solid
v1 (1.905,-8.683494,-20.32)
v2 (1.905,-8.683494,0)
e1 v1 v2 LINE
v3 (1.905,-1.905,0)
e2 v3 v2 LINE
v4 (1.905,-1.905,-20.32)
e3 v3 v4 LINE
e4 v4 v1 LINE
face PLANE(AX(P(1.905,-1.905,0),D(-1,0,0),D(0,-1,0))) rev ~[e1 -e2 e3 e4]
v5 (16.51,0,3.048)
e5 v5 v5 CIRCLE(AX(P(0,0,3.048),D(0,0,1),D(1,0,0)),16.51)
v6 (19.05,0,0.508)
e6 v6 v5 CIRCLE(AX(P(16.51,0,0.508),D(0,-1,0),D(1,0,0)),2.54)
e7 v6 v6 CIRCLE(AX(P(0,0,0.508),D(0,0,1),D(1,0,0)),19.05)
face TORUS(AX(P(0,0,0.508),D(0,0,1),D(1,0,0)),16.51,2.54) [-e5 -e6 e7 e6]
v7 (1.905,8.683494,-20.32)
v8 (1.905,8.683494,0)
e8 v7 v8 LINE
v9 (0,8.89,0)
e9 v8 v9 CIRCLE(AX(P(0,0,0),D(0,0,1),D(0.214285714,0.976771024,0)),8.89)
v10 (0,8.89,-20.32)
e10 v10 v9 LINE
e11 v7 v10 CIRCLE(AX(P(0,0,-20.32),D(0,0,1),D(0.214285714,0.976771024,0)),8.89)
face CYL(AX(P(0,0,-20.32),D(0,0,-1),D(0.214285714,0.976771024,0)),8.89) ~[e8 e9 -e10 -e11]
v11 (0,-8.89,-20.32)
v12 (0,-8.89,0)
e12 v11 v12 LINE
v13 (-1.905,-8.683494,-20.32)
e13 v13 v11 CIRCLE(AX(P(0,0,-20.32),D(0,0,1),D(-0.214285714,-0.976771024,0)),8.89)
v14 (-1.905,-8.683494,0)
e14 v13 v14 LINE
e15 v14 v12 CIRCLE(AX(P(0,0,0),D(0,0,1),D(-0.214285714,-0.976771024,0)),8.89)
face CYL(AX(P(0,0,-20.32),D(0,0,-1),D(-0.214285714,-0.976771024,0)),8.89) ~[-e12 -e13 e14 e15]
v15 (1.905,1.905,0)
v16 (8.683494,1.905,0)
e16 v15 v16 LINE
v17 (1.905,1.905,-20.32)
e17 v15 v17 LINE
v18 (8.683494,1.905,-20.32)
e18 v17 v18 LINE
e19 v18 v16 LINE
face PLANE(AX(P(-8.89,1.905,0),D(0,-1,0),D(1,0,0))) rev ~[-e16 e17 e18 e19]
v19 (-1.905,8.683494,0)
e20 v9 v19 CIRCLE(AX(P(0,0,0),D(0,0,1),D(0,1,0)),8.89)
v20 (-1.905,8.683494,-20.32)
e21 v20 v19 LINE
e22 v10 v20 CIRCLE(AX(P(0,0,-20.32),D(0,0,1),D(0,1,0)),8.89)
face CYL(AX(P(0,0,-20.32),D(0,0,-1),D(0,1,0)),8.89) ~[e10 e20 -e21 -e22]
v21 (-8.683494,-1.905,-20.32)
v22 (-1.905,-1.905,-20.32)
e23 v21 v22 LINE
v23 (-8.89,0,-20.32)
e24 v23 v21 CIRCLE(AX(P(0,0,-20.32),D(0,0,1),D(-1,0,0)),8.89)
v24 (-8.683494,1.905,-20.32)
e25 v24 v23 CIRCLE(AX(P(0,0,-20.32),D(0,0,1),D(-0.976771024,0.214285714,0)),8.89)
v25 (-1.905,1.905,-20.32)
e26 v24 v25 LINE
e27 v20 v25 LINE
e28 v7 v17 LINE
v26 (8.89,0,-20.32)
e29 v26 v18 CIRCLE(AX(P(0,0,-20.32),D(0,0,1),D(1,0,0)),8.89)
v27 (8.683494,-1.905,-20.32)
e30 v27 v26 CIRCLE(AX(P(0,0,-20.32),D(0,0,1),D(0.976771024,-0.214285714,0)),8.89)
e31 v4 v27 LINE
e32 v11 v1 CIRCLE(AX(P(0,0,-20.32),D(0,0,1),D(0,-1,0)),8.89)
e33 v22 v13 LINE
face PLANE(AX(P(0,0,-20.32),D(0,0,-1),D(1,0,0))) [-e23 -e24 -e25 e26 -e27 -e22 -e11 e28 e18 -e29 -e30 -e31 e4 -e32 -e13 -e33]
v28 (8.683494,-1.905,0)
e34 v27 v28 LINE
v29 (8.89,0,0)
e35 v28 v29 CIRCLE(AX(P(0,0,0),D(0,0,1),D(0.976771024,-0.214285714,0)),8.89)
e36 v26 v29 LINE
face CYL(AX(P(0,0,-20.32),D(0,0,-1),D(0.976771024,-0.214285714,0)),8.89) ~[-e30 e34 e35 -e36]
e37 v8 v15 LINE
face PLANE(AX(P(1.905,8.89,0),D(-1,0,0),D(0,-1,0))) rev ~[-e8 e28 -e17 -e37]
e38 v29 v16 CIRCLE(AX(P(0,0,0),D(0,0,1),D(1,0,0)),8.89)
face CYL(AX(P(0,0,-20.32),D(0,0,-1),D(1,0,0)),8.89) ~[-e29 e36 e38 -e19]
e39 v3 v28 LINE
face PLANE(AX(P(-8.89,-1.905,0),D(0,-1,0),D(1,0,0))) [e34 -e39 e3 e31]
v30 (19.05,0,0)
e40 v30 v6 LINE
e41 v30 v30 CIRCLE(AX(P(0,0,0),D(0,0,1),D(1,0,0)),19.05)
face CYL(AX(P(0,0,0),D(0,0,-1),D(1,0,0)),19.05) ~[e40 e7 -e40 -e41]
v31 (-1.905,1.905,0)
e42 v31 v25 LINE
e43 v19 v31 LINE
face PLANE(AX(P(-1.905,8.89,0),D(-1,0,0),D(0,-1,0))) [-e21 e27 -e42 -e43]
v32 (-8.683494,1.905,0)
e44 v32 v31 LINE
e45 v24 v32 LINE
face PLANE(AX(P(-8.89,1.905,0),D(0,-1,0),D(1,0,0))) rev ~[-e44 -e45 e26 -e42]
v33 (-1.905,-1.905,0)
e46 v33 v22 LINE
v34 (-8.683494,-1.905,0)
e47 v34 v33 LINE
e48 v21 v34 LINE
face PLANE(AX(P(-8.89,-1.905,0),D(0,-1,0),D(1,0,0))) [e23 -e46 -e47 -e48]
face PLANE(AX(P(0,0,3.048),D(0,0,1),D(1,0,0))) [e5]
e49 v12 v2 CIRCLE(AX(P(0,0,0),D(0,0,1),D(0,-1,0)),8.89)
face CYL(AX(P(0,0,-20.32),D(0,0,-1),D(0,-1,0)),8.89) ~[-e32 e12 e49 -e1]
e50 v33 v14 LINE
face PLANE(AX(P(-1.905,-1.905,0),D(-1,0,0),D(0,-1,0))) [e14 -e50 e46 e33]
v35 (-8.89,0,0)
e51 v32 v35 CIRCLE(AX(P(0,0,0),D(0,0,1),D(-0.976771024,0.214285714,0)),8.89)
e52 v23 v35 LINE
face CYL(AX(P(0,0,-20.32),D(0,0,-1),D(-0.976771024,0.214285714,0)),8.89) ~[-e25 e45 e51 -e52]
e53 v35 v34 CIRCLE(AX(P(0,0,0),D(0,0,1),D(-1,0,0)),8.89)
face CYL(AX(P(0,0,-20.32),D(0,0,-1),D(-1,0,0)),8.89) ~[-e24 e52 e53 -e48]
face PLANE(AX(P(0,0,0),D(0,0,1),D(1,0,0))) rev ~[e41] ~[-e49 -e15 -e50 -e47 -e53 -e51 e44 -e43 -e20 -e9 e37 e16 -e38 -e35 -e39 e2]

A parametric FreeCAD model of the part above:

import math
import FreeCAD as App
import Part
import Sketcher
from FreeCAD import Vector
Q = App.Units.Quantity


def edges_at(feature, points):
    """Names of the edges that pass closest to the given points."""
    edges = feature.Shape.Edges
    near = lambda p: min(range(len(edges)), key=lambda i: edges[i].distToShape(Part.Vertex(*p))[0])
    return sorted({f"Edge{near(p) + 1}" for p in points})

doc = App.newDocument("Part")
body = doc.addObject("PartDesign::Body", "Body")

sketch1 = doc.addObject("Sketcher::SketchObject", "Sketch")
body.addObject(sketch1)
sketch1.AttachmentSupport = (doc.XY_Plane, [""])
sketch1.MapMode = "FlatFace"
sketch1.addGeometry(Part.Circle(Vector(0, 0, 0), Vector(0, 0, 1), 19.05), False)
sketch1.addConstraint(Sketcher.Constraint("Coincident", 0, 3, -1, 1))
sketch1.addConstraint(Sketcher.Constraint("Diameter", 0, Q("1.5 in")))
pad1 = doc.addObject("PartDesign::Pad", "Pad")
body.addObject(pad1)
pad1.Profile = sketch1
pad1.Length = Q("0.12 in")
doc.recompute()

fillet = doc.addObject("PartDesign::Fillet", "Fillet")
body.addObject(fillet)
fillet.Base = (pad1, edges_at(pad1, [(-19.05, 0, 3.048)]))
fillet.Radius = Q("0.1 in")

sketch2 = doc.addObject("Sketcher::SketchObject", "Sketch001")
body.addObject(sketch2)
sketch2.AttachmentSupport = (doc.XY_Plane, [""])
sketch2.MapMode = "FlatFace"
sketch2.addGeometry(Part.LineSegment(Vector(-8.89, -1.905, 0), Vector(-8.89, 1.905, 0)), False)
sketch2.addGeometry(Part.LineSegment(Vector(-8.89, 1.905, 0), Vector(-1.905, 1.905, 0)), False)
sketch2.addGeometry(Part.LineSegment(Vector(-1.905, 1.905, 0), Vector(-1.905, 8.89, 0)), False)
sketch2.addGeometry(Part.LineSegment(Vector(-1.905, 8.89, 0), Vector(1.905, 8.89, 0)), False)
sketch2.addGeometry(Part.LineSegment(Vector(1.905, 8.89, 0), Vector(1.905, 1.905, 0)), False)
sketch2.addGeometry(Part.LineSegment(Vector(1.905, 1.905, 0), Vector(8.89, 1.905, 0)), False)
sketch2.addGeometry(Part.LineSegment(Vector(8.89, 1.905, 0), Vector(8.89, -1.905, 0)), False)
sketch2.addGeometry(Part.LineSegment(Vector(8.89, -1.905, 0), Vector(1.905, -1.905, 0)), False)
sketch2.addGeometry(Part.LineSegment(Vector(1.905, -1.905, 0), Vector(1.905, -8.89, 0)), False)
sketch2.addGeometry(Part.LineSegment(Vector(1.905, -8.89, 0), Vector(-1.905, -8.89, 0)), False)
sketch2.addGeometry(Part.LineSegment(Vector(-1.905, -8.89, 0), Vector(-1.905, -1.905, 0)), False)
sketch2.addGeometry(Part.LineSegment(Vector(-1.905, -1.905, 0), Vector(-8.89, -1.905, 0)), False)
sketch2.addConstraint(Sketcher.Constraint("Coincident", 0, 2, 1, 1))
sketch2.addConstraint(Sketcher.Constraint("Coincident", 1, 2, 2, 1))
sketch2.addConstraint(Sketcher.Constraint("Coincident", 2, 2, 3, 1))
sketch2.addConstraint(Sketcher.Constraint("Coincident", 3, 2, 4, 1))
sketch2.addConstraint(Sketcher.Constraint("Coincident", 4, 2, 5, 1))
sketch2.addConstraint(Sketcher.Constraint("Coincident", 5, 2, 6, 1))
sketch2.addConstraint(Sketcher.Constraint("Coincident", 6, 2, 7, 1))
sketch2.addConstraint(Sketcher.Constraint("Coincident", 7, 2, 8, 1))
sketch2.addConstraint(Sketcher.Constraint("Coincident", 8, 2, 9, 1))
sketch2.addConstraint(Sketcher.Constraint("Coincident", 9, 2, 10, 1))
sketch2.addConstraint(Sketcher.Constraint("Coincident", 10, 2, 11, 1))
sketch2.addConstraint(Sketcher.Constraint("Coincident", 11, 2, 0, 1))
sketch2.addConstraint(Sketcher.Constraint("Vertical", 0))
sketch2.addConstraint(Sketcher.Constraint("Horizontal", 1))
sketch2.addConstraint(Sketcher.Constraint("Vertical", 2))
sketch2.addConstraint(Sketcher.Constraint("Horizontal", 3))
sketch2.addConstraint(Sketcher.Constraint("Vertical", 4))
sketch2.addConstraint(Sketcher.Constraint("Horizontal", 5))
sketch2.addConstraint(Sketcher.Constraint("Vertical", 6))
sketch2.addConstraint(Sketcher.Constraint("Horizontal", 7))
sketch2.addConstraint(Sketcher.Constraint("Vertical", 8))
sketch2.addConstraint(Sketcher.Constraint("Horizontal", 9))
sketch2.addConstraint(Sketcher.Constraint("Vertical", 10))
sketch2.addConstraint(Sketcher.Constraint("Horizontal", 11))
sketch2.addConstraint(Sketcher.Constraint("Symmetric", 0, 2, 6, 2, -1, 1))
sketch2.addConstraint(Sketcher.Constraint("Symmetric", 2, 2, 8, 2, -1, 1))
sketch2.addConstraint(Sketcher.Constraint("Symmetric", 4, 2, 10, 2, -1, 1))
sketch2.addConstraint(Sketcher.Constraint("Symmetric", 1, 2, 4, 2, -2))
sketch2.addConstraint(Sketcher.Constraint("Equal", 9, 0))
sketch2.addConstraint(Sketcher.Constraint("Equal", 11, 2))
sketch2.addConstraint(Sketcher.Constraint("DistanceX", 3, 1, 3, 2, Q("0.15 in")))
sketch2.addConstraint(Sketcher.Constraint("DistanceX", 0, 2, 5, 2, Q("0.7 in")))
pad2 = doc.addObject("PartDesign::Pad", "Pad001")
body.addObject(pad2)
pad2.Profile = sketch2
pad2.Length = Q("0.8 in")
pad2.Reversed = True

sketch3 = doc.addObject("Sketcher::SketchObject", "Sketch002")
body.addObject(sketch3)
sketch3.AttachmentSupport = (doc.XY_Plane, [""])
sketch3.MapMode = "FlatFace"
sketch3.AttachmentOffset = App.Placement(Vector(0, 0, -0.8 * 25.4), App.Rotation())
sketch3.addGeometry(Part.ArcOfCircle(Part.Circle(Vector(0, 0, 0), Vector(0, 0, 1), 8.89), math.radians(-90), math.radians(-77.626375)), False)
sketch3.addGeometry(Part.LineSegment(Vector(1.905, -8.683494, 0), Vector(1.905, -8.89, 0)), False)
sketch3.addGeometry(Part.LineSegment(Vector(1.905, -8.89, 0), Vector(0, -8.89, 0)), False)
sketch3.addConstraint(Sketcher.Constraint("Coincident", 0, 2, 1, 1))
sketch3.addConstraint(Sketcher.Constraint("Coincident", 1, 2, 2, 1))
sketch3.addConstraint(Sketcher.Constraint("Tangent", 2, 2, 0, 1))
sketch3.addConstraint(Sketcher.Constraint("Vertical", 1))
sketch3.addConstraint(Sketcher.Constraint("Horizontal", 2))
sketch3.addConstraint(Sketcher.Constraint("Coincident", 0, 3, -1, 1))
sketch3.addConstraint(Sketcher.Constraint("Radius", 0, Q("0.35 in")))
sketch3.addConstraint(Sketcher.Constraint("DistanceX", 2, 2, 2, 1, Q("0.075 in")))
pocket1 = doc.addObject("PartDesign::Pocket", "Pocket")
body.addObject(pocket1)
pocket1.Profile = sketch3
pocket1.Length = Q("0.8 in")
pocket1.Reversed = True

sketch4 = doc.addObject("Sketcher::SketchObject", "Sketch003")
body.addObject(sketch4)
sketch4.AttachmentSupport = (doc.XY_Plane, [""])
sketch4.MapMode = "FlatFace"
sketch4.AttachmentOffset = App.Placement(Vector(0, 0, -0.8 * 25.4), App.Rotation())
sketch4.addGeometry(Part.ArcOfCircle(Part.Circle(Vector(0, 0, 0), Vector(0, 0, 1), 8.89), math.radians(-102.373625), math.radians(-90)), False)
sketch4.addGeometry(Part.LineSegment(Vector(0, -8.89, 0), Vector(-1.905, -8.89, 0)), False)
sketch4.addGeometry(Part.LineSegment(Vector(-1.905, -8.89, 0), Vector(-1.905, -8.683494, 0)), False)
sketch4.addConstraint(Sketcher.Constraint("Tangent", 0, 2, 1, 1))
sketch4.addConstraint(Sketcher.Constraint("Coincident", 1, 2, 2, 1))
sketch4.addConstraint(Sketcher.Constraint("Coincident", 2, 2, 0, 1))
sketch4.addConstraint(Sketcher.Constraint("Horizontal", 1))
sketch4.addConstraint(Sketcher.Constraint("Vertical", 2))
sketch4.addConstraint(Sketcher.Constraint("Coincident", 0, 3, -1, 1))
sketch4.addConstraint(Sketcher.Constraint("Radius", 0, Q("0.35 in")))
sketch4.addConstraint(Sketcher.Constraint("DistanceX", 1, 2, 1, 1, Q("0.075 in")))
pocket2 = doc.addObject("PartDesign::Pocket", "Pocket001")
body.addObject(pocket2)
pocket2.Profile = sketch4
pocket2.Length = Q("0.8 in")
pocket2.Reversed = True

sketch5 = doc.addObject("Sketcher::SketchObject", "Sketch004")
body.addObject(sketch5)
sketch5.AttachmentSupport = (doc.XY_Plane, [""])
sketch5.MapMode = "FlatFace"
sketch5.AttachmentOffset = App.Placement(Vector(0, 0, -0.8 * 25.4), App.Rotation())
sketch5.addGeometry(Part.LineSegment(Vector(-8.89, 1.905, 0), Vector(-8.683494, 1.905, 0)), False)
sketch5.addGeometry(Part.ArcOfCircle(Part.Circle(Vector(0, 0, 0), Vector(0, 0, 1), 8.89), math.radians(167.626375), math.radians(180)), False)
sketch5.addGeometry(Part.LineSegment(Vector(-8.89, 0, 0), Vector(-8.89, 1.905, 0)), False)
sketch5.addConstraint(Sketcher.Constraint("Coincident", 0, 2, 1, 1))
sketch5.addConstraint(Sketcher.Constraint("Tangent", 1, 2, 2, 1))
sketch5.addConstraint(Sketcher.Constraint("Coincident", 2, 2, 0, 1))
sketch5.addConstraint(Sketcher.Constraint("Horizontal", 0))
sketch5.addConstraint(Sketcher.Constraint("Vertical", 2))
sketch5.addConstraint(Sketcher.Constraint("Coincident", 1, 3, -1, 1))
sketch5.addConstraint(Sketcher.Constraint("Radius", 1, Q("0.35 in")))
sketch5.addConstraint(Sketcher.Constraint("DistanceY", 2, 1, 2, 2, Q("0.075 in")))
pocket3 = doc.addObject("PartDesign::Pocket", "Pocket002")
body.addObject(pocket3)
pocket3.Profile = sketch5
pocket3.Length = Q("0.8 in")
pocket3.Reversed = True

sketch6 = doc.addObject("Sketcher::SketchObject", "Sketch005")
body.addObject(sketch6)
sketch6.AttachmentSupport = (doc.XY_Plane, [""])
sketch6.MapMode = "FlatFace"
sketch6.AttachmentOffset = App.Placement(Vector(0, 0, -0.8 * 25.4), App.Rotation())
sketch6.addGeometry(Part.ArcOfCircle(Part.Circle(Vector(0, 0, 0), Vector(0, 0, 1), 8.89), math.radians(180), math.radians(192.373625)), False)
sketch6.addGeometry(Part.LineSegment(Vector(-8.683494, -1.905, 0), Vector(-8.89, -1.905, 0)), False)
sketch6.addGeometry(Part.LineSegment(Vector(-8.89, -1.905, 0), Vector(-8.89, 0, 0)), False)
sketch6.addConstraint(Sketcher.Constraint("Coincident", 0, 2, 1, 1))
sketch6.addConstraint(Sketcher.Constraint("Coincident", 1, 2, 2, 1))
sketch6.addConstraint(Sketcher.Constraint("Tangent", 2, 2, 0, 1))
sketch6.addConstraint(Sketcher.Constraint("Horizontal", 1))
sketch6.addConstraint(Sketcher.Constraint("Vertical", 2))
sketch6.addConstraint(Sketcher.Constraint("Coincident", 0, 3, -1, 1))
sketch6.addConstraint(Sketcher.Constraint("Radius", 0, Q("0.35 in")))
sketch6.addConstraint(Sketcher.Constraint("DistanceY", 2, 1, 2, 2, Q("0.075 in")))
pocket4 = doc.addObject("PartDesign::Pocket", "Pocket003")
body.addObject(pocket4)
pocket4.Profile = sketch6
pocket4.Length = Q("0.8 in")
pocket4.Reversed = True

sketch7 = doc.addObject("Sketcher::SketchObject", "Sketch006")
body.addObject(sketch7)
sketch7.AttachmentSupport = (doc.XY_Plane, [""])
sketch7.MapMode = "FlatFace"
sketch7.AttachmentOffset = App.Placement(Vector(0, 0, -0.8 * 25.4), App.Rotation())
sketch7.addGeometry(Part.LineSegment(Vector(1.905, 8.89, 0), Vector(1.905, 8.683494, 0)), False)
sketch7.addGeometry(Part.ArcOfCircle(Part.Circle(Vector(0, 0, 0), Vector(0, 0, 1), 8.89), math.radians(77.626375), math.radians(90)), False)
sketch7.addGeometry(Part.LineSegment(Vector(0, 8.89, 0), Vector(1.905, 8.89, 0)), False)
sketch7.addGeometry(Part.LineSegment(Vector(-1.905, 8.89, 0), Vector(0, 8.89, 0)), False)
sketch7.addGeometry(Part.ArcOfCircle(Part.Circle(Vector(0, 0, 0), Vector(0, 0, 1), 8.89), math.radians(90), math.radians(102.373625)), False)
sketch7.addGeometry(Part.LineSegment(Vector(-1.905, 8.683494, 0), Vector(-1.905, 8.89, 0)), False)
sketch7.addGeometry(Part.LineSegment(Vector(8.89, 1.905, 0), Vector(8.89, 0, 0)), False)
sketch7.addGeometry(Part.ArcOfCircle(Part.Circle(Vector(0, 0, 0), Vector(0, 0, 1), 8.89), math.radians(0), math.radians(12.373625)), False)
sketch7.addGeometry(Part.LineSegment(Vector(8.683494, 1.905, 0), Vector(8.89, 1.905, 0)), False)
sketch7.addGeometry(Part.ArcOfCircle(Part.Circle(Vector(0, 0, 0), Vector(0, 0, 1), 8.89), math.radians(-12.373625), math.radians(0)), False)
sketch7.addGeometry(Part.LineSegment(Vector(8.89, 0, 0), Vector(8.89, -1.905, 0)), False)
sketch7.addGeometry(Part.LineSegment(Vector(8.89, -1.905, 0), Vector(8.683494, -1.905, 0)), False)
sketch7.addConstraint(Sketcher.Constraint("Coincident", 0, 2, 1, 1))
sketch7.addConstraint(Sketcher.Constraint("Tangent", 1, 2, 2, 1))
sketch7.addConstraint(Sketcher.Constraint("Coincident", 2, 2, 0, 1))
sketch7.addConstraint(Sketcher.Constraint("Tangent", 3, 2, 4, 1))
sketch7.addConstraint(Sketcher.Constraint("Coincident", 4, 2, 5, 1))
sketch7.addConstraint(Sketcher.Constraint("Coincident", 5, 2, 3, 1))
sketch7.addConstraint(Sketcher.Constraint("Tangent", 6, 2, 7, 1))
sketch7.addConstraint(Sketcher.Constraint("Coincident", 7, 2, 8, 1))
sketch7.addConstraint(Sketcher.Constraint("Coincident", 8, 2, 6, 1))
sketch7.addConstraint(Sketcher.Constraint("Tangent", 9, 2, 10, 1))
sketch7.addConstraint(Sketcher.Constraint("Coincident", 10, 2, 11, 1))
sketch7.addConstraint(Sketcher.Constraint("Coincident", 11, 2, 9, 1))
sketch7.addConstraint(Sketcher.Constraint("Vertical", 0))
sketch7.addConstraint(Sketcher.Constraint("Horizontal", 2))
sketch7.addConstraint(Sketcher.Constraint("Horizontal", 3))
sketch7.addConstraint(Sketcher.Constraint("Vertical", 5))
sketch7.addConstraint(Sketcher.Constraint("Vertical", 6))
sketch7.addConstraint(Sketcher.Constraint("Horizontal", 8))
sketch7.addConstraint(Sketcher.Constraint("Vertical", 10))
sketch7.addConstraint(Sketcher.Constraint("Horizontal", 11))
sketch7.addConstraint(Sketcher.Constraint("Coincident", 1, 3, -1, 1))
sketch7.addConstraint(Sketcher.Constraint("Coincident", 4, 3, -1, 1))
sketch7.addConstraint(Sketcher.Constraint("Coincident", 7, 3, -1, 1))
sketch7.addConstraint(Sketcher.Constraint("Coincident", 9, 3, -1, 1))
sketch7.addConstraint(Sketcher.Constraint("Equal", 1, 4))
sketch7.addConstraint(Sketcher.Constraint("Equal", 4, 7))
sketch7.addConstraint(Sketcher.Constraint("Equal", 7, 9))
sketch7.addConstraint(Sketcher.Constraint("Horizontal", 0, 2, 4, 2))
sketch7.addConstraint(Sketcher.Constraint("Vertical", 7, 2, 11, 2))
sketch7.addConstraint(Sketcher.Constraint("Equal", 11, 0))
sketch7.addConstraint(Sketcher.Constraint("Radius", 1, Q("0.35 in")))
sketch7.addConstraint(Sketcher.Constraint("DistanceX", 2, 1, 2, 2, Q("0.075 in")))
pocket5 = doc.addObject("PartDesign::Pocket", "Pocket004")
body.addObject(pocket5)
pocket5.Profile = sketch7
pocket5.Length = Q("0.8 in")
pocket5.Reversed = True

doc.recompute()
